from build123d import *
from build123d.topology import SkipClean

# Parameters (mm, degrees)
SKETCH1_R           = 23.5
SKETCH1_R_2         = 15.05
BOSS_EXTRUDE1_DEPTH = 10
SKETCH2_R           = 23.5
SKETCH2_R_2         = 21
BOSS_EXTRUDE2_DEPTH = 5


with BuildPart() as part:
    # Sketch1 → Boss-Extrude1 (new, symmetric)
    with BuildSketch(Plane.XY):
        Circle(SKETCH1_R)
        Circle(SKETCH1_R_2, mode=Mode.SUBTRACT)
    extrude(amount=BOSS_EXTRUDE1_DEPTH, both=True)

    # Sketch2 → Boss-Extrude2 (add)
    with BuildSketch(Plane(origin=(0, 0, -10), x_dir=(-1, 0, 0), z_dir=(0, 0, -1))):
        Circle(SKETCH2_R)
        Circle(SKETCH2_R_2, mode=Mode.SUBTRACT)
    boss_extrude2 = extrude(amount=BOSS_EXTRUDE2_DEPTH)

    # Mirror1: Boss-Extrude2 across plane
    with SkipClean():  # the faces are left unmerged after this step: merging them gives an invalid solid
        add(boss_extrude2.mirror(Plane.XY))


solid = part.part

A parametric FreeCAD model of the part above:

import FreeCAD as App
import Part
import Sketcher
from FreeCAD import Vector
Q = App.Units.Quantity

doc = App.newDocument("Part")
params = doc.addObject("Spreadsheet::Sheet", "Params")
for row, (alias, value) in enumerate([
    ("sketch1_diameter", "47 mm"),
    ("sketch1_diameter2", "30.1 mm"),
    ("pad1_length", "20 mm"),
    ("sketch2_diameter", "47 mm"),
    ("sketch2_diameter2", "42 mm"),
    ("pad2_length", "5 mm"),
], start=1):
    params.set(f"A{row}", alias)
    params.set(f"B{row}", "=" + value)
    params.setAlias(f"B{row}", alias)

body = doc.addObject("PartDesign::Body", "Body")

# Sketch on XY plane
sketch1 = body.newObject("Sketcher::SketchObject", "Sketch")
sketch1.AttachmentSupport = (doc.getObject("XY_Plane"), [""])
sketch1.MapMode = "FlatFace"
sketch1.addGeometry([
    Part.Circle(Vector(0, 0, 0), Vector(0, 0, 1), 23.5),
    Part.Circle(Vector(0, 0, 0), Vector(0, 0, 1), 15.05),
], False)
sketch1.addConstraint([
    Sketcher.Constraint("Coincident", 0, 3, -1, 1),
    Sketcher.Constraint("Coincident", 1, 3, -1, 1),
    Sketcher.Constraint("Diameter", 0, Q("47 mm")),
    Sketcher.Constraint("Diameter", 1, Q("30.1 mm")),
])
sketch1.setExpression("Constraints[2]", "Params.sketch1_diameter")
sketch1.setExpression("Constraints[3]", "Params.sketch1_diameter2")
pad1 = body.newObject("PartDesign::Pad", "Pad")
pad1.Profile = sketch1
pad1.setExpression("Length", "Params.pad1_length")
pad1.Midplane = True

# Sketch on XY plane
sketch2 = body.newObject("Sketcher::SketchObject", "Sketch001")
sketch2.AttachmentSupport = (doc.getObject("XY_Plane"), [""])
sketch2.MapMode = "FlatFace"
sketch2.AttachmentOffset = App.Placement(Vector(0, 0, -10), App.Rotation())
sketch2.addGeometry([
    Part.Circle(Vector(0, 0, 0), Vector(0, 0, 1), 23.5),
    Part.Circle(Vector(0, 0, 0), Vector(0, 0, 1), 21),
], False)
sketch2.addConstraint([
    Sketcher.Constraint("Coincident", 0, 3, -1, 1),
    Sketcher.Constraint("Coincident", 1, 3, -1, 1),
    Sketcher.Constraint("Diameter", 0, Q("47 mm")),
    Sketcher.Constraint("Diameter", 1, Q("42 mm")),
])
sketch2.setExpression("Constraints[2]", "Params.sketch2_diameter")
sketch2.setExpression("Constraints[3]", "Params.sketch2_diameter2")
pad2 = body.newObject("PartDesign::Pad", "Pad001")
pad2.Profile = sketch2
pad2.setExpression("Length", "Params.pad2_length")
pad2.Reversed = True
doc.recompute()

mirrored = body.newObject("PartDesign::Mirrored", "Mirrored")
mirrored.Originals = [pad2]
mirrored.MirrorPlane = (doc.getObject("XY_Plane"), [""])
body.Tip = mirrored

doc.recompute()
